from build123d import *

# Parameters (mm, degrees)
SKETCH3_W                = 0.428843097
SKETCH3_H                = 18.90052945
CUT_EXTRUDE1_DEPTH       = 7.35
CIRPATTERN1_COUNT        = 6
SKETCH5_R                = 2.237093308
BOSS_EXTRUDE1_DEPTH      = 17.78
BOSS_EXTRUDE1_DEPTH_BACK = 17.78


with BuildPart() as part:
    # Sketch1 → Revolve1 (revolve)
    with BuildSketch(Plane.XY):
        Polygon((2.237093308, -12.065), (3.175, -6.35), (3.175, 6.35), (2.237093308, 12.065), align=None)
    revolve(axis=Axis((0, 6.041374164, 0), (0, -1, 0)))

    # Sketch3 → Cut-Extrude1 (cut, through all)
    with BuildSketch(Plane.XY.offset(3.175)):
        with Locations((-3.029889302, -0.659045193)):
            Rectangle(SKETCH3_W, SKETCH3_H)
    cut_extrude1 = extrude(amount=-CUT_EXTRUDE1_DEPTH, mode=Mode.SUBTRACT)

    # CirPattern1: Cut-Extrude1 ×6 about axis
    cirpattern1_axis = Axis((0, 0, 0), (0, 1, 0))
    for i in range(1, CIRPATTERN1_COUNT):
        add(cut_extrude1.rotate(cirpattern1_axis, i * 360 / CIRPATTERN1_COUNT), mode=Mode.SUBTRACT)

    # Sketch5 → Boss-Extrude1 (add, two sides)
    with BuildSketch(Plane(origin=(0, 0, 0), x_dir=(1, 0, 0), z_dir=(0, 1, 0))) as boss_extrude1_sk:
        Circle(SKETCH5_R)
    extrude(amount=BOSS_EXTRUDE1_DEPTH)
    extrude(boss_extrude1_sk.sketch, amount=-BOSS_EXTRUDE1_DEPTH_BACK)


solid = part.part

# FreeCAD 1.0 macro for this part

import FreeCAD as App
import Part
import Sketcher

V = App.Vector
Q = App.Units.Quantity

doc = App.newDocument("Part")
body = doc.addObject("PartDesign::Body", "Body")

# Sketch on XY plane
sketch1 = body.newObject("Sketcher::SketchObject", "Sketch")
sketch1.AttachmentSupport = (doc.getObject("XY_Plane"), [""])
sketch1.MapMode = "FlatFace"
sketch1.addGeometry([
    Part.LineSegment(V(2, -12, 0), V(3, -6, 0)),
    Part.LineSegment(V(3, -6, 0), V(3, 6, 0)),
    Part.LineSegment(V(3, 6, 0), V(2, 12, 0)),
    Part.LineSegment(V(2, 12, 0), V(2, -12, 0)),
], False)
sketch1.addConstraint([
    Sketcher.Constraint("Coincident", 0, 2, 1, 1),
    Sketcher.Constraint("Coincident", 1, 2, 2, 1),
    Sketcher.Constraint("Coincident", 2, 2, 3, 1),
    Sketcher.Constraint("Coincident", 3, 2, 0, 1),
    Sketcher.Constraint("Vertical", 1),
    Sketcher.Constraint("Vertical", 3),
    Sketcher.Constraint("Equal", 0, 2),
    Sketcher.Constraint("DistanceY", 1, 1, 1, 2, Q("0.5 in")),
    Sketcher.Constraint("DistanceY", 3, 2, 3, 1, Q("0.95 in")),
    Sketcher.Constraint("DistanceY", 0, 2, -1, 1, Q("0.25 in")),
    Sketcher.Constraint("DistanceX", -1, 1, 0, 2, Q("0.125 in")),
    Sketcher.Constraint("Distance", 0, Q("5.79145 mm")),
])
revolution = body.newObject("PartDesign::Revolution", "Revolution")
revolution.Profile = sketch1
revolution.ReferenceAxis = (sketch1, ["V_Axis"])
revolution.Angle = 360

# Sketch on XY plane
sketch2 = body.newObject("Sketcher::SketchObject", "Sketch001")
sketch2.AttachmentSupport = (doc.getObject("XY_Plane"), [""])
sketch2.MapMode = "FlatFace"
sketch2.AttachmentOffset = App.Placement(V(0, 0, 0.125 * 25.4), App.Rotation())
sketch2.addGeometry([
    Part.LineSegment(V(-3.24, 8.79, 0), V(-3.24, -10.11, 0)),
    Part.LineSegment(V(-3.24, -10.11, 0), V(-2.82, -10.11, 0)),
    Part.LineSegment(V(-2.82, -10.11, 0), V(-2.82, 8.79, 0)),
    Part.LineSegment(V(-2.82, 8.79, 0), V(-3.24, 8.79, 0)),
], False)
sketch2.addConstraint([
    Sketcher.Constraint("Coincident", 0, 2, 1, 1),
    Sketcher.Constraint("Coincident", 1, 2, 2, 1),
    Sketcher.Constraint("Coincident", 2, 2, 3, 1),
    Sketcher.Constraint("Coincident", 3, 2, 0, 1),
    Sketcher.Constraint("Vertical", 0),
    Sketcher.Constraint("Horizontal", 1),
    Sketcher.Constraint("Vertical", 2),
    Sketcher.Constraint("Horizontal", 3),
    Sketcher.Constraint("DistanceY", 0, 2, 0, 1, Q("18.900529 mm")),
    Sketcher.Constraint("DistanceX", 1, 1, 1, 2, Q("0.428843 mm")),
    Sketcher.Constraint("DistanceX", 0, 2, -1, 1, Q("3.244311 mm")),
    Sketcher.Constraint("DistanceY", 0, 2, -1, 1, Q("10.10931 mm")),
])
pocket1 = body.newObject("PartDesign::Pocket", "Pocket")
pocket1.Profile = sketch2
pocket1.Type = "ThroughAll"
doc.recompute()

polarpattern = body.newObject("PartDesign::PolarPattern", "PolarPattern")
polarpattern.Originals = [pocket1]
polarpattern.Axis = (doc.getObject("Y_Axis"), [""])
polarpattern.Angle = 360
polarpattern.Occurrences = 6
body.Tip = polarpattern

# Sketch on XZ plane
sketch3 = body.newObject("Sketcher::SketchObject", "Sketch002")
sketch3.AttachmentSupport = (doc.getObject("XZ_Plane"), [""])
sketch3.MapMode = "FlatFace"
sketch3.addGeometry(Part.Circle(V(0, 0, 0), V(0, 0, 1), 2.2), False)
sketch3.addConstraint([
    Sketcher.Constraint("Coincident", 0, 3, -1, 1),
    Sketcher.Constraint("Diameter", 0, Q("4.474187 mm")),
])
pad1 = body.newObject("PartDesign::Pad", "Pad")
pad1.Profile = sketch3
pad1.Type = "TwoLengths"
pad1.Length = Q("0.7 in")
pad1.Length2 = Q("0.7 in")
pad1.Reversed = True

doc.recompute()
